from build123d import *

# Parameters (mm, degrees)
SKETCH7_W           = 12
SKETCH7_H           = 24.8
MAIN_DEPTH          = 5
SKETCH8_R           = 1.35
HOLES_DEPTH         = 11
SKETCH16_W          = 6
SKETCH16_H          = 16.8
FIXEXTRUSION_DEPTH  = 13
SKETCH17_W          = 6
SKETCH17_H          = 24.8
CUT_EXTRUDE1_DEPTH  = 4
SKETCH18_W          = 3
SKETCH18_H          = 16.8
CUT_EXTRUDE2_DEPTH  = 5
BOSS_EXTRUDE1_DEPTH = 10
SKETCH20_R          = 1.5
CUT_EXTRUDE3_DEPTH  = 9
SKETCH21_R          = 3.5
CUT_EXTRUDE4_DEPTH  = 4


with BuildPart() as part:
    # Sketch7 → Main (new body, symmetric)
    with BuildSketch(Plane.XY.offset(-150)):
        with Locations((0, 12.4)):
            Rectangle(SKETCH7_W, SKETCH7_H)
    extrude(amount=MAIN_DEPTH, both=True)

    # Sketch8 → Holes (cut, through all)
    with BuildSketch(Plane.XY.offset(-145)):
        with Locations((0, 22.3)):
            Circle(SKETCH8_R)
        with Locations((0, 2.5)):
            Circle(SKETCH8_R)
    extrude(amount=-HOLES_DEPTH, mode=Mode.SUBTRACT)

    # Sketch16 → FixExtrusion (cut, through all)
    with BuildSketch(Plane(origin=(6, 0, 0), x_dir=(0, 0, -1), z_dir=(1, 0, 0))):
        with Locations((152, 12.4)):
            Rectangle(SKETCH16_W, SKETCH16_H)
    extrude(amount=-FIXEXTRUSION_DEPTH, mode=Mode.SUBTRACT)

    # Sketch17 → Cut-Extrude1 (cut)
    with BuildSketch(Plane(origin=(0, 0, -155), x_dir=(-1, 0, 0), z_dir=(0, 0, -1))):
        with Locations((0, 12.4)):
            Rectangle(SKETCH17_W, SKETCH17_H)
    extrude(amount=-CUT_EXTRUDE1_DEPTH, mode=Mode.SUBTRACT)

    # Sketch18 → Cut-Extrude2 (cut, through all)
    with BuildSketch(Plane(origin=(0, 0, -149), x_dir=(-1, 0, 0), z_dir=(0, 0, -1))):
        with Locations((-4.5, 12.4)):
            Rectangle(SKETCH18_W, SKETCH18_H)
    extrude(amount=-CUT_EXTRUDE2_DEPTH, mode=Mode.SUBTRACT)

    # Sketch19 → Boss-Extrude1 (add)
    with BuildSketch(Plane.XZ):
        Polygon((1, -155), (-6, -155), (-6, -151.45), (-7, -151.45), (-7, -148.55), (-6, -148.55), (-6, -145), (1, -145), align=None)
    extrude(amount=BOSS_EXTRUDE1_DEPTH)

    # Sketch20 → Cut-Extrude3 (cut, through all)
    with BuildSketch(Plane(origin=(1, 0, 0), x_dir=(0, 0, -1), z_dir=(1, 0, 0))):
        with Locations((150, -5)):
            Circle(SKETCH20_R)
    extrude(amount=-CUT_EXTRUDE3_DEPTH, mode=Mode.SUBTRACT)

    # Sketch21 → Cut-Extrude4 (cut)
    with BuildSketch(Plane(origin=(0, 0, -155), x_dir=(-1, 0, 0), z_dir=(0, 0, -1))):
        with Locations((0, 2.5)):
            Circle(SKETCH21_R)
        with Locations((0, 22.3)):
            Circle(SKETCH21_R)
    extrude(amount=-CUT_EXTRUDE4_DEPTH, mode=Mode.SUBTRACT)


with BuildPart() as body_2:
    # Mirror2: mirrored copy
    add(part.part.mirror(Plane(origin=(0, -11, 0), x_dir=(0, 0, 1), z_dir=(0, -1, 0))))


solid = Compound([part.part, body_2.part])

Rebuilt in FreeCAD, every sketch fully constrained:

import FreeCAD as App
import Part
import Sketcher

V = App.Vector
Q = App.Units.Quantity


def add_polygon(sketch, points):
    """Adds a closed chain of lines whose ends are joined by coincident constraints."""
    first, n = sketch.GeometryCount, len(points)
    for a, b in zip(points, points[1:] + points[:1]):
        sketch.addGeometry(Part.LineSegment(App.Vector(*a, 0), App.Vector(*b, 0)), False)
    for i in range(n):
        sketch.addConstraint(Sketcher.Constraint("Coincident", first + i, 2, first + (i + 1) % n, 1))

doc = App.newDocument("Part")
params = doc.addObject("Spreadsheet::Sheet", "Params")
for row, (alias, value) in enumerate([
    ("sketch1_width", "12 mm"),
    ("sketch1_height", "24.8 mm"),
    ("pad1_length", "10 mm"),
    ("sketch2_diameter", "2.7 mm"),
    ("sketch3_height", "6 mm"),
    ("sketch3_width", "16.8 mm"),
    ("sketch4_width", "6 mm"),
    ("sketch4_height", "24.8 mm"),
    ("pocket3_length", "4 mm"),
    ("sketch5_width", "3 mm"),
    ("sketch5_height", "16.8 mm"),
    ("sketch6_width", "7 mm"),
    ("sketch6_width2", "1 mm"),
    ("sketch6_height", "10 mm"),
    ("sketch6_height2", "2.9 mm"),
    ("pad2_length", "10 mm"),
    ("sketch7_diameter", "3 mm"),
    ("sketch8_diameter", "7 mm"),
    ("pocket6_length", "4 mm"),
], start=1):
    params.set(f"A{row}", alias)
    params.set(f"B{row}", "=" + value)
    params.setAlias(f"B{row}", alias)

body = doc.addObject("PartDesign::Body", "Body")

# Sketch on XY plane
sketch1 = body.newObject("Sketcher::SketchObject", "Sketch")
sketch1.AttachmentSupport = (doc.getObject("XY_Plane"), [""])
sketch1.MapMode = "FlatFace"
sketch1.AttachmentOffset = App.Placement(V(0, 0, -150), App.Rotation())
add_polygon(sketch1, [(-6, 25), (-6, 0), (6, 0), (6, 25)])  # lines 0-3
sketch1.addConstraint([
    Sketcher.Constraint("Vertical", 0),
    Sketcher.Constraint("Horizontal", 1),
    Sketcher.Constraint("Vertical", 2),
    Sketcher.Constraint("Horizontal", 3),
    Sketcher.Constraint("Symmetric", 0, 2, 1, 2, -1, 1),
    Sketcher.Constraint("DistanceX", 1, 1, 1, 2, Q("12 mm")),
    Sketcher.Constraint("DistanceY", 0, 2, 0, 1, Q("24.8 mm")),
])
sketch1.setExpression("Constraints[9]", "Params.sketch1_width")
sketch1.setExpression("Constraints[10]", "Params.sketch1_height")
pad1 = body.newObject("PartDesign::Pad", "Pad")
pad1.Profile = sketch1
pad1.setExpression("Length", "Params.pad1_length")
pad1.Midplane = True

# Sketch on XY plane
sketch2 = body.newObject("Sketcher::SketchObject", "Sketch001")
sketch2.AttachmentSupport = (doc.getObject("XY_Plane"), [""])
sketch2.MapMode = "FlatFace"
sketch2.AttachmentOffset = App.Placement(V(0, 0, -145), App.Rotation())
sketch2.addGeometry([
    Part.Circle(V(0, 22.3, 0), V(0, 0, 1), 1.4),
    Part.Circle(V(0, 2.5, 0), V(0, 0, 1), 1.4),
], False)
sketch2.addConstraint([
    Sketcher.Constraint("Equal", 0, 1),
    Sketcher.Constraint("PointOnObject", 0, 3, -2),
    Sketcher.Constraint("PointOnObject", 1, 3, -2),
    Sketcher.Constraint("Diameter", 0, Q("2.7 mm")),
    Sketcher.Constraint("DistanceY", -1, 1, 0, 3, Q("22.3 mm")),
    Sketcher.Constraint("DistanceY", -1, 1, 1, 3, Q("2.5 mm")),
])
sketch2.setExpression("Constraints[3]", "Params.sketch2_diameter")
pocket1 = body.newObject("PartDesign::Pocket", "Pocket")
pocket1.Profile = sketch2
pocket1.Type = "ThroughAll"

# Sketch on YZ plane
sketch3 = body.newObject("Sketcher::SketchObject", "Sketch002")
sketch3.AttachmentSupport = (doc.getObject("YZ_Plane"), [""])
sketch3.MapMode = "FlatFace"
sketch3.AttachmentOffset = App.Placement(V(0, 0, 6), App.Rotation())
add_polygon(sketch3, [(21, -149), (4, -149), (4, -155), (21, -155)])  # lines 0-3
sketch3.addConstraint([
    Sketcher.Constraint("Horizontal", 0),
    Sketcher.Constraint("Vertical", 1),
    Sketcher.Constraint("Horizontal", 2),
    Sketcher.Constraint("Vertical", 3),
    Sketcher.Constraint("DistanceY", 1, 2, 1, 1, Q("6 mm")),
    Sketcher.Constraint("DistanceX", 0, 2, 0, 1, Q("16.8 mm")),
    Sketcher.Constraint("DistanceX", -1, 1, 0, 2, Q("4 mm")),
    Sketcher.Constraint("DistanceY", 0, 2, -1, 1, Q("149 mm")),
])
sketch3.setExpression("Constraints[8]", "Params.sketch3_height")
sketch3.setExpression("Constraints[9]", "Params.sketch3_width")
pocket2 = body.newObject("PartDesign::Pocket", "Pocket001")
pocket2.Profile = sketch3
pocket2.Type = "ThroughAll"

# Sketch on XY plane
sketch4 = body.newObject("Sketcher::SketchObject", "Sketch003")
sketch4.AttachmentSupport = (doc.getObject("XY_Plane"), [""])
sketch4.MapMode = "FlatFace"
sketch4.AttachmentOffset = App.Placement(V(0, 0, -155), App.Rotation())
add_polygon(sketch4, [(3, 25), (3, 0), (-3, 0), (-3, 25)])  # lines 0-3
sketch4.addConstraint([
    Sketcher.Constraint("Vertical", 0),
    Sketcher.Constraint("Horizontal", 1),
    Sketcher.Constraint("Vertical", 2),
    Sketcher.Constraint("Horizontal", 3),
    Sketcher.Constraint("Symmetric", 0, 2, 1, 2, -1, 1),
    Sketcher.Constraint("DistanceX", 1, 2, 1, 1, Q("6 mm")),
    Sketcher.Constraint("DistanceY", 0, 2, 0, 1, Q("24.8 mm")),
])
sketch4.setExpression("Constraints[9]", "Params.sketch4_width")
sketch4.setExpression("Constraints[10]", "Params.sketch4_height")
pocket3 = body.newObject("PartDesign::Pocket", "Pocket002")
pocket3.Profile = sketch4
pocket3.setExpression("Length", "Params.pocket3_length")
pocket3.Reversed = True

# Sketch on XY plane
sketch5 = body.newObject("Sketcher::SketchObject", "Sketch004")
sketch5.AttachmentSupport = (doc.getObject("XY_Plane"), [""])
sketch5.MapMode = "FlatFace"
sketch5.AttachmentOffset = App.Placement(V(0, 0, -149), App.Rotation())
add_polygon(sketch5, [(6, 20.8), (6, 4), (3, 4), (3, 20.8)])  # lines 0-3
sketch5.addConstraint([
    Sketcher.Constraint("Vertical", 0),
    Sketcher.Constraint("Horizontal", 1),
    Sketcher.Constraint("Vertical", 2),
    Sketcher.Constraint("Horizontal", 3),
    Sketcher.Constraint("DistanceX", 1, 2, 1, 1, Q("3 mm")),
    Sketcher.Constraint("DistanceY", 0, 2, 0, 1, Q("16.8 mm")),
    Sketcher.Constraint("DistanceX", -1, 1, 0, 2, Q("6 mm")),
    Sketcher.Constraint("DistanceY", -1, 1, 0, 2, Q("4 mm")),
])
sketch5.setExpression("Constraints[8]", "Params.sketch5_width")
sketch5.setExpression("Constraints[9]", "Params.sketch5_height")
pocket4 = body.newObject("PartDesign::Pocket", "Pocket003")
pocket4.Profile = sketch5
pocket4.Type = "ThroughAll"
pocket4.Reversed = True

# Sketch on XZ plane
sketch6 = body.newObject("Sketcher::SketchObject", "Sketch005")
sketch6.AttachmentSupport = (doc.getObject("XZ_Plane"), [""])
sketch6.MapMode = "FlatFace"
add_polygon(sketch6, [(-6, -155), (1, -155), (1, -145), (-6, -145), (-6, -148.6), (-7, -148.6), (-7, -151.4), (-6, -151.4)])  # lines 0-7
sketch6.addConstraint([
    Sketcher.Constraint("Horizontal", 0),
    Sketcher.Constraint("Vertical", 1),
    Sketcher.Constraint("Horizontal", 2),
    Sketcher.Constraint("Vertical", 3),
    Sketcher.Constraint("Horizontal", 4),
    Sketcher.Constraint("Vertical", 5),
    Sketcher.Constraint("Horizontal", 6),
    Sketcher.Constraint("Vertical", 7),
    Sketcher.Constraint("Vertical", 3, 2, 6, 2),
    Sketcher.Constraint("Equal", 3, 7),
    Sketcher.Constraint("DistanceX", 0, 1, 0, 2, Q("7 mm")),
    Sketcher.Constraint("DistanceX", 4, 2, 4, 1, Q("1 mm")),
    Sketcher.Constraint("DistanceY", 1, 1, 1, 2, Q("10 mm")),
    Sketcher.Constraint("DistanceY", 5, 2, 5, 1, Q("2.9 mm")),
    Sketcher.Constraint("DistanceX", -1, 1, 0, 2, Q("1 mm")),
    Sketcher.Constraint("DistanceY", 0, 2, -1, 1, Q("155 mm")),
])
sketch6.setExpression("Constraints[18]", "Params.sketch6_width")
sketch6.setExpression("Constraints[19]", "Params.sketch6_width2")
sketch6.setExpression("Constraints[20]", "Params.sketch6_height")
sketch6.setExpression("Constraints[21]", "Params.sketch6_height2")
pad2 = body.newObject("PartDesign::Pad", "Pad001")
pad2.Profile = sketch6
pad2.setExpression("Length", "Params.pad2_length")

# Sketch on YZ plane
sketch7 = body.newObject("Sketcher::SketchObject", "Sketch006")
sketch7.AttachmentSupport = (doc.getObject("YZ_Plane"), [""])
sketch7.MapMode = "FlatFace"
sketch7.AttachmentOffset = App.Placement(V(0, 0, 1), App.Rotation())
sketch7.addGeometry(Part.Circle(V(-5, -150, 0), V(0, 0, 1), 1.5), False)
sketch7.addConstraint([
    Sketcher.Constraint("Diameter", 0, Q("3 mm")),
    Sketcher.Constraint("DistanceX", 0, 3, -1, 1, Q("5 mm")),
    Sketcher.Constraint("DistanceY", 0, 3, -1, 1, Q("150 mm")),
])
sketch7.setExpression("Constraints[0]", "Params.sketch7_diameter")
pocket5 = body.newObject("PartDesign::Pocket", "Pocket004")
pocket5.Profile = sketch7
pocket5.Type = "ThroughAll"

# Sketch on XY plane
sketch8 = body.newObject("Sketcher::SketchObject", "Sketch007")
sketch8.AttachmentSupport = (doc.getObject("XY_Plane"), [""])
sketch8.MapMode = "FlatFace"
sketch8.AttachmentOffset = App.Placement(V(0, 0, -155), App.Rotation())
sketch8.addGeometry([
    Part.Circle(V(0, 2.5, 0), V(0, 0, 1), 3.5),
    Part.Circle(V(0, 22.3, 0), V(0, 0, 1), 3.5),
], False)
sketch8.addConstraint([
    Sketcher.Constraint("Equal", 0, 1),
    Sketcher.Constraint("PointOnObject", 0, 3, -2),
    Sketcher.Constraint("PointOnObject", 1, 3, -2),
    Sketcher.Constraint("Diameter", 0, Q("7 mm")),
    Sketcher.Constraint("DistanceY", -1, 1, 0, 3, Q("2.5 mm")),
    Sketcher.Constraint("DistanceY", -1, 1, 1, 3, Q("22.3 mm")),
])
sketch8.setExpression("Constraints[3]", "Params.sketch8_diameter")
pocket6 = body.newObject("PartDesign::Pocket", "Pocket005")
pocket6.Profile = sketch8
pocket6.setExpression("Length", "Params.pocket6_length")
pocket6.Reversed = True
body2 = doc.addObject("PartDesign::Body", "Body001")
doc.recompute()

mirroring = doc.addObject("Part::Mirroring", "Mirroring")
mirroring.Source = body
mirroring.Base = V(0, -11, 0)
mirroring.Normal = V(0, -1, 0)
body2.BaseFeature = mirroring
doc.recompute()
mirroring.Visibility = False

doc.recompute()
